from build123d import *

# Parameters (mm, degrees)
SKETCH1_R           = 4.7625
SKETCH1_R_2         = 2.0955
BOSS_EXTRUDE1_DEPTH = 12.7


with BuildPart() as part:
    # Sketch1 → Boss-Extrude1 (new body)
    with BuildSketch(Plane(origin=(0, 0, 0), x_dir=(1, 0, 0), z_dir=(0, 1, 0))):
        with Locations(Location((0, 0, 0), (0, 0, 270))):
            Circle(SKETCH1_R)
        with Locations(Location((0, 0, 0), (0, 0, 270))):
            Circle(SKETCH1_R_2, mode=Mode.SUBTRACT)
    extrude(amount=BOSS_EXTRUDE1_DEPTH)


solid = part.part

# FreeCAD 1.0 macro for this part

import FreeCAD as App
import Part
import Sketcher
from FreeCAD import Vector
Q = App.Units.Quantity

doc = App.newDocument("Part")
body = doc.addObject("PartDesign::Body", "Body")

sketch1 = body.newObject("Sketcher::SketchObject", "Sketch")
sketch1.AttachmentSupport = (doc.getObject("XZ_Plane"), [""])
sketch1.MapMode = "FlatFace"
sketch1.addGeometry([
    Part.Circle(Vector(0, 0, 0), Vector(0, 0, 1), 4.8),
    Part.Circle(Vector(0, 0, 0), Vector(0, 0, 1), 2.1),
], False)
sketch1.addConstraint([
    Sketcher.Constraint("Coincident", 0, 3, -1, 1),
    Sketcher.Constraint("Coincident", 1, 3, -1, 1),
    Sketcher.Constraint("Diameter", 0, Q("0.375 in")),
    Sketcher.Constraint("Diameter", 1, Q("0.165 in")),
])
pad1 = body.newObject("PartDesign::Pad", "Pad")
pad1.Profile = sketch1
pad1.Length = Q("0.5 in")
pad1.Reversed = True

doc.recompute()
